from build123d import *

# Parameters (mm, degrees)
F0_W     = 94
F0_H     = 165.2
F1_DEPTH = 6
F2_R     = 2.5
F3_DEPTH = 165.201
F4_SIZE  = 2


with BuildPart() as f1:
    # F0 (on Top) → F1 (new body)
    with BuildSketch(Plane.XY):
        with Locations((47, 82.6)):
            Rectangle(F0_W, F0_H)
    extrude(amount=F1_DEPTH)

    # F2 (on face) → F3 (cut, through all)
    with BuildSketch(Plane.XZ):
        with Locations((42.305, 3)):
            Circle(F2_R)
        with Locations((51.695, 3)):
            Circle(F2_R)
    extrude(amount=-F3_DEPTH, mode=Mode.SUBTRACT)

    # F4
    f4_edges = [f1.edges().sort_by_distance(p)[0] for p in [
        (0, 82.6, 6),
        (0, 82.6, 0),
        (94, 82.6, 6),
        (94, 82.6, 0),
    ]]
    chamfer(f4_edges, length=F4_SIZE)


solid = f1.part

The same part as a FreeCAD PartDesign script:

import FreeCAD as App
import Part
import Sketcher

V = App.Vector


def edges_at(feature, points):
    """Names of the edges that pass closest to the given points."""
    edges = feature.Shape.Edges
    near = lambda p: min(range(len(edges)), key=lambda i: edges[i].distToShape(Part.Vertex(*p))[0])
    return sorted({f"Edge{near(p) + 1}" for p in points})

doc = App.newDocument("Part")
body = doc.addObject("PartDesign::Body", "Body")

# Sketch on XY plane
sketch1 = doc.addObject("Sketcher::SketchObject", "Sketch")
body.addObject(sketch1)
sketch1.AttachmentSupport = (doc.XY_Plane, [""])
sketch1.MapMode = "FlatFace"
sketch1.addGeometry(Part.LineSegment(V(0, 165, 0), V(0, 0, 0)), False)
sketch1.addGeometry(Part.LineSegment(V(0, 0, 0), V(94, 0, 0)), False)
sketch1.addGeometry(Part.LineSegment(V(94, 0, 0), V(94, 165, 0)), False)
sketch1.addGeometry(Part.LineSegment(V(94, 165, 0), V(0, 165, 0)), False)
sketch1.addConstraint(Sketcher.Constraint("Coincident", 0, 2, 1, 1))
sketch1.addConstraint(Sketcher.Constraint("Coincident", 1, 2, 2, 1))
sketch1.addConstraint(Sketcher.Constraint("Coincident", 2, 2, 3, 1))
sketch1.addConstraint(Sketcher.Constraint("Coincident", 3, 2, 0, 1))
sketch1.addConstraint(Sketcher.Constraint("Vertical", 0))
sketch1.addConstraint(Sketcher.Constraint("Horizontal", 1))
sketch1.addConstraint(Sketcher.Constraint("Vertical", 2))
sketch1.addConstraint(Sketcher.Constraint("Horizontal", 3))
sketch1.addConstraint(Sketcher.Constraint("Coincident", 0, 2, -1, 1))
sketch1.addConstraint(Sketcher.Constraint("DistanceX", 1, 1, 1, 2, 94.0))
sketch1.addConstraint(Sketcher.Constraint("DistanceY", 0, 2, 0, 1, 165.2))
pad1 = doc.addObject("PartDesign::Pad", "Pad")
body.addObject(pad1)
pad1.Profile = sketch1
pad1.Length = 6

# Sketch on XZ plane
sketch2 = doc.addObject("Sketcher::SketchObject", "Sketch001")
body.addObject(sketch2)
sketch2.AttachmentSupport = (doc.XZ_Plane, [""])
sketch2.MapMode = "FlatFace"
sketch2.addGeometry(Part.Circle(V(42.3, 3, 0), V(0, 0, 1), 2.5), False)
sketch2.addGeometry(Part.Circle(V(51.7, 3, 0), V(0, 0, 1), 2.5), False)
sketch2.addConstraint(Sketcher.Constraint("Equal", 0, 1))
sketch2.addConstraint(Sketcher.Constraint("Horizontal", 0, 3, 1, 3))
sketch2.addConstraint(Sketcher.Constraint("Diameter", 0, 5.0))
sketch2.addConstraint(Sketcher.Constraint("DistanceY", -1, 1, 0, 3, 3.0))
sketch2.addConstraint(Sketcher.Constraint("DistanceX", 0, 3, 1, 3, 9.39))
sketch2.addConstraint(Sketcher.Constraint("DistanceX", -1, 1, 0, 3, 42.305))
pocket1 = doc.addObject("PartDesign::Pocket", "Pocket")
body.addObject(pocket1)
pocket1.Profile = sketch2
pocket1.Type = "ThroughAll"
doc.recompute()

chamfer = doc.addObject("PartDesign::Chamfer", "Chamfer")
body.addObject(chamfer)
chamfer.Base = (pocket1, edges_at(pocket1, [
    (0, 82.6, 6),
    (0, 82.6, 0),
    (94, 82.6, 6),
    (94, 82.6, 0),
]))
chamfer.Size = 2

doc.recompute()
